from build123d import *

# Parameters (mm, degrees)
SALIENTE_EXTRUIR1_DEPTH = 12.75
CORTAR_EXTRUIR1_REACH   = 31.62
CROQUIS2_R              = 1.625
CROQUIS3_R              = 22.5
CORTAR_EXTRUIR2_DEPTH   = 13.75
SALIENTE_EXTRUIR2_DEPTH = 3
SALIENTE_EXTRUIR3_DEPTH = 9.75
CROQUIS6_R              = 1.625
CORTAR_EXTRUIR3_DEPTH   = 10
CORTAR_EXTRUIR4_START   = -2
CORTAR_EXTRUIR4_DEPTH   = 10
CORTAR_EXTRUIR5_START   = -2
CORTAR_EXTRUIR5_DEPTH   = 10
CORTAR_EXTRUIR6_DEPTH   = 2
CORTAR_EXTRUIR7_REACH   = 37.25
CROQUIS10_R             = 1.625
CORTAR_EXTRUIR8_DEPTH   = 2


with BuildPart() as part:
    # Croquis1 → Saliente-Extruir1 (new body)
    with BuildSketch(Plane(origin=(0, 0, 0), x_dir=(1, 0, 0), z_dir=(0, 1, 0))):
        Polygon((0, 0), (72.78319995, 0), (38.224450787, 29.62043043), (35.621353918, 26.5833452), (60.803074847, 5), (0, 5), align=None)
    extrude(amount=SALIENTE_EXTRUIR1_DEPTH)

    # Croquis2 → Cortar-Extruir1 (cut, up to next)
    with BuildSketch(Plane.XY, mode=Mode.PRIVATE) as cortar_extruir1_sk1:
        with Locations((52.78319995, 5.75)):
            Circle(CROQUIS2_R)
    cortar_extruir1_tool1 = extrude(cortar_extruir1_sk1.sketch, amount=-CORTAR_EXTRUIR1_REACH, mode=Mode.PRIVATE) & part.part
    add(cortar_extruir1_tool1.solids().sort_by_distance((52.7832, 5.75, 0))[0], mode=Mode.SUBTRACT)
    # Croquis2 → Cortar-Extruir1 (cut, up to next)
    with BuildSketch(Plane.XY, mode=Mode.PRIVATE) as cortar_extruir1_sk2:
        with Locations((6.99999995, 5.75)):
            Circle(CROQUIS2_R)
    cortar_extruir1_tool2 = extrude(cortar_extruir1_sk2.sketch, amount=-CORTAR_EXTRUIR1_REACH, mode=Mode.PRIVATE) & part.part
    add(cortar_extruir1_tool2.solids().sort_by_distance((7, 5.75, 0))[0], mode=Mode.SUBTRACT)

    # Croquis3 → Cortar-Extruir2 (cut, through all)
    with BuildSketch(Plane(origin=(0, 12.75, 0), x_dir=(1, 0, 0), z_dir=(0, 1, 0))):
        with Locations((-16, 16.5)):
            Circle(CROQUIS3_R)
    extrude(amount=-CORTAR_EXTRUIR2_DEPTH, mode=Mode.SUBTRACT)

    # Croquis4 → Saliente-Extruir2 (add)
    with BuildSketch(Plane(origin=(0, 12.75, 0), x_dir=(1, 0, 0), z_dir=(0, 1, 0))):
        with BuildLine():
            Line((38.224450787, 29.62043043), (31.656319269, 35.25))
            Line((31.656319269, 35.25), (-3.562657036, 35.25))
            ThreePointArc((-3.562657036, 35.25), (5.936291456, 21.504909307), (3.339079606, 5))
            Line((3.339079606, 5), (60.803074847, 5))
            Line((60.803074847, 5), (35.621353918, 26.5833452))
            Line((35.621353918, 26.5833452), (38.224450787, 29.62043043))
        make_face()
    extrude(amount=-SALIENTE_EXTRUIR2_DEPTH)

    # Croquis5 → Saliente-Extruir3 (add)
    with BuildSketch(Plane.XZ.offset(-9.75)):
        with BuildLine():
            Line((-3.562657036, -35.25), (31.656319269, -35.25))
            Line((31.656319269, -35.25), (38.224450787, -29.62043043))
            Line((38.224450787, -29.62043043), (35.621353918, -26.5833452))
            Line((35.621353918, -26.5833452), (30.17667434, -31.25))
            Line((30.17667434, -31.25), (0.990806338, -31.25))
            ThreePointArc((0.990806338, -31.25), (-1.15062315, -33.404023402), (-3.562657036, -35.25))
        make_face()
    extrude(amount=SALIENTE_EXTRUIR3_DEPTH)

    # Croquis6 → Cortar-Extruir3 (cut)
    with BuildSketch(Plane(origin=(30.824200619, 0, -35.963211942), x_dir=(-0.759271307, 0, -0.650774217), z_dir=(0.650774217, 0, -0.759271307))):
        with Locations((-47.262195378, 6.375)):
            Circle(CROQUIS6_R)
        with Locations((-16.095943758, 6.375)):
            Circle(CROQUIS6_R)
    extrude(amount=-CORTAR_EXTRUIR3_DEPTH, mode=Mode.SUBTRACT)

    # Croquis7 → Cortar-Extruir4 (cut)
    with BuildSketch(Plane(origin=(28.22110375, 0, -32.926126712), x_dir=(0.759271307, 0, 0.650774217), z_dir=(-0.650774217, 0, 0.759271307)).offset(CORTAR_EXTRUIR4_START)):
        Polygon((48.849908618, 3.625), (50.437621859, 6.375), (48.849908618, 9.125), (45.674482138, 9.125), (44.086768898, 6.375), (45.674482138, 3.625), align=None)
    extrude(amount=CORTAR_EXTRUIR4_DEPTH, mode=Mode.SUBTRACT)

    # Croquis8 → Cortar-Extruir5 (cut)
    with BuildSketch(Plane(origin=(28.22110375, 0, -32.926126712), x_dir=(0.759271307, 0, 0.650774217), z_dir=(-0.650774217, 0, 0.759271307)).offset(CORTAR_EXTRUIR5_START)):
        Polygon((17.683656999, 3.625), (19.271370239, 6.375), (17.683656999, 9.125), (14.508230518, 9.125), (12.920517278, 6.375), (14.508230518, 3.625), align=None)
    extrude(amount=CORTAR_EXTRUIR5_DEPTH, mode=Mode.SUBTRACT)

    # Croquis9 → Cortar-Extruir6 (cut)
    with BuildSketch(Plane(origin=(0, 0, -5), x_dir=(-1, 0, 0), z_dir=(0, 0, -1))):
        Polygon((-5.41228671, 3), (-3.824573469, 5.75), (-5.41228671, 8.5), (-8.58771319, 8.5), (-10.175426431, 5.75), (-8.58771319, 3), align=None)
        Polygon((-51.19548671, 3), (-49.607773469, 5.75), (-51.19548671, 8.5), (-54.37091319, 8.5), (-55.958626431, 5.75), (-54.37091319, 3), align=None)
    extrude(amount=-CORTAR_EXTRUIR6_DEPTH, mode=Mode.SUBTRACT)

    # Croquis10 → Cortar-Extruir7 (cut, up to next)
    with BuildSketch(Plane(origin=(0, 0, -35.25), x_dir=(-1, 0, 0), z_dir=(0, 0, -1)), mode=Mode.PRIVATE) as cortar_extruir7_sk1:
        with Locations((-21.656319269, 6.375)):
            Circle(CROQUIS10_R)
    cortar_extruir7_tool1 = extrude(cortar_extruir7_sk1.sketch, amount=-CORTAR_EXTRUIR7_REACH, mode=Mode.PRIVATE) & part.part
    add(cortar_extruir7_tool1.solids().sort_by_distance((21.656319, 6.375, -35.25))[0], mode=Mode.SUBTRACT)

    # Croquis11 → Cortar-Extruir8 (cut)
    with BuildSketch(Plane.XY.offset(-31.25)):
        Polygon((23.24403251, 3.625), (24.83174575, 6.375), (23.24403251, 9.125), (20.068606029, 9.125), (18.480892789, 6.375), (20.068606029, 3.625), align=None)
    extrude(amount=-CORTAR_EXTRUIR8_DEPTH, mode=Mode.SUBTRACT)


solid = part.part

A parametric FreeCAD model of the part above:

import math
import FreeCAD as App
import Part
import Sketcher
from FreeCAD import Vector
Q = App.Units.Quantity


def add_polygon(sketch, points):
    """Adds a closed chain of lines whose ends are joined by coincident constraints."""
    first, n = sketch.GeometryCount, len(points)
    for a, b in zip(points, points[1:] + points[:1]):
        sketch.addGeometry(Part.LineSegment(App.Vector(*a, 0), App.Vector(*b, 0)), False)
    for i in range(n):
        sketch.addConstraint(Sketcher.Constraint("Coincident", first + i, 2, first + (i + 1) % n, 1))

doc = App.newDocument("Part")
body = doc.addObject("PartDesign::Body", "Body")

sketch1 = body.newObject("Sketcher::SketchObject", "Sketch")
sketch1.AttachmentSupport = (doc.getObject("XZ_Plane"), [""])
sketch1.MapMode = "FlatFace"
add_polygon(sketch1, [(0, 0), (72.8, 0), (38.2, -29.6), (35.6, -26.6), (60.8, -5), (0, -5)])
sketch1.addConstraint([
    Sketcher.Constraint("Horizontal", 0),
    Sketcher.Constraint("Horizontal", 4),
    Sketcher.Constraint("Vertical", 5),
    Sketcher.Constraint("Coincident", 5, 2, -1, 1),
    Sketcher.Constraint("Perpendicular", 1, 2),
    Sketcher.Constraint("Perpendicular", 2, 3),
    Sketcher.Constraint("DistanceY", 5, 1, 5, 2, Q("5 mm")),
    Sketcher.Constraint("Distance", 2, Q("4 mm")),
    Sketcher.Constraint("Angle", 1, Q("-139.4 deg")),
    Sketcher.Constraint("DistanceX", 0, 1, 0, 2, Q("72.7832 mm")),
    Sketcher.Constraint("Distance", 1, Q("45.515679 mm")),
])
pad1 = body.newObject("PartDesign::Pad", "Pad")
pad1.Profile = sketch1
pad1.Length = 12.75
pad1.Reversed = True

sketch2 = body.newObject("Sketcher::SketchObject", "Sketch001")
sketch2.AttachmentSupport = (doc.getObject("XY_Plane"), [""])
sketch2.MapMode = "FlatFace"
sketch2.addGeometry(Part.Circle(Vector(52.8, 5.8, 0), Vector(0, 0, 1), 1.6), False)
sketch2.addConstraint([
    Sketcher.Constraint("Diameter", 0, Q("3.25 mm")),
    Sketcher.Constraint("DistanceY", -1, 1, 0, 3, Q("5.75 mm")),
    Sketcher.Constraint("DistanceX", -1, 1, 0, 3, Q("52.7832 mm")),
])
pocket1 = body.newObject("PartDesign::Pocket", "Pocket")
pocket1.Profile = sketch2
pocket1.Type = "UpToFirst"

sketch3 = body.newObject("Sketcher::SketchObject", "Sketch002")
sketch3.AttachmentSupport = (doc.getObject("XY_Plane"), [""])
sketch3.MapMode = "FlatFace"
sketch3.addGeometry(Part.Circle(Vector(7, 5.8, 0), Vector(0, 0, 1), 1.6), False)
sketch3.addConstraint([
    Sketcher.Constraint("Diameter", 0, Q("3.25 mm")),
    Sketcher.Constraint("DistanceX", -1, 1, 0, 3, Q("7 mm")),
    Sketcher.Constraint("DistanceY", -1, 1, 0, 3, Q("5.75 mm")),
])
pocket2 = body.newObject("PartDesign::Pocket", "Pocket001")
pocket2.Profile = sketch3
pocket2.Type = "UpToFirst"

sketch4 = body.newObject("Sketcher::SketchObject", "Sketch003")
sketch4.AttachmentSupport = (doc.getObject("XZ_Plane"), [""])
sketch4.MapMode = "FlatFace"
sketch4.AttachmentOffset = App.Placement(Vector(0, 0, -12.75), App.Rotation())
sketch4.addGeometry(Part.Circle(Vector(-16, -16, 0), Vector(0, 0, 1), 22), False)
sketch4.addConstraint([
    Sketcher.Constraint("Diameter", 0, Q("45 mm")),
    Sketcher.Constraint("DistanceX", 0, 3, -1, 1, Q("16 mm")),
    Sketcher.Constraint("DistanceY", 0, 3, -1, 1, Q("16.5 mm")),
])
pocket3 = body.newObject("PartDesign::Pocket", "Pocket002")
pocket3.Profile = sketch4
pocket3.Type = "ThroughAll"
pocket3.Reversed = True

sketch5 = body.newObject("Sketcher::SketchObject", "Sketch004")
sketch5.AttachmentSupport = (doc.getObject("XZ_Plane"), [""])
sketch5.MapMode = "FlatFace"
sketch5.AttachmentOffset = App.Placement(Vector(0, 0, -12.75), App.Rotation())
sketch5.addGeometry([
    Part.LineSegment(Vector(38.2, -29.6, 0), Vector(31.7, -35.2, 0)),
    Part.LineSegment(Vector(31.7, -35.2, 0), Vector(-3.6, -35.2, 0)),
    Part.ArcOfCircle(Part.Circle(Vector(-16, -16.5, 0), Vector(0, 0, 1), 22.5), math.radians(-56), math.radians(31)),
    Part.LineSegment(Vector(3.3, -5, 0), Vector(60.8, -5, 0)),
    Part.LineSegment(Vector(60.8, -5, 0), Vector(35.6, -26.6, 0)),
    Part.LineSegment(Vector(35.6, -26.6, 0), Vector(38.2, -29.6, 0)),
], False)
sketch5.addConstraint([
    Sketcher.Constraint("Coincident", 0, 2, 1, 1),
    Sketcher.Constraint("Coincident", 1, 2, 2, 1),
    Sketcher.Constraint("Coincident", 2, 2, 3, 1),
    Sketcher.Constraint("Coincident", 3, 2, 4, 1),
    Sketcher.Constraint("Coincident", 4, 2, 5, 1),
    Sketcher.Constraint("Coincident", 5, 2, 0, 1),
    Sketcher.Constraint("Horizontal", 1),
    Sketcher.Constraint("Horizontal", 3),
    Sketcher.Constraint("Parallel", 0, 4),
    Sketcher.Constraint("Perpendicular", 4, 5),
    Sketcher.Constraint("Radius", 2, Q("22.5 mm")),
    Sketcher.Constraint("Distance", 5, Q("4 mm")),
    Sketcher.Constraint("DistanceX", 2, 3, -1, 1, Q("16 mm")),
    Sketcher.Constraint("DistanceY", 2, 2, -1, 1, Q("5 mm")),
    Sketcher.Constraint("Angle", 0, Q("-139.4 deg")),
    Sketcher.Constraint("DistanceY", 2, 3, -1, 1, Q("16.5 mm")),
    Sketcher.Constraint("DistanceY", 0, 2, -1, 1, Q("35.25 mm")),
    Sketcher.Constraint("DistanceX", 1, 2, 1, 1, Q("35.218976 mm")),
    Sketcher.Constraint("DistanceX", -1, 1, 5, 2, Q("38.224451 mm")),
])
pad2 = body.newObject("PartDesign::Pad", "Pad001")
pad2.Profile = sketch5
pad2.Length = 3

sketch6 = body.newObject("Sketcher::SketchObject", "Sketch005")
sketch6.AttachmentSupport = (doc.getObject("XZ_Plane"), [""])
sketch6.MapMode = "FlatFace"
sketch6.AttachmentOffset = App.Placement(Vector(0, 0, -9.75), App.Rotation())
sketch6.addGeometry([
    Part.LineSegment(Vector(-3.6, -35.2, 0), Vector(31.7, -35.2, 0)),
    Part.LineSegment(Vector(31.7, -35.2, 0), Vector(38.2, -29.6, 0)),
    Part.LineSegment(Vector(38.2, -29.6, 0), Vector(35.6, -26.6, 0)),
    Part.LineSegment(Vector(35.6, -26.6, 0), Vector(30.2, -31.2, 0)),
    Part.LineSegment(Vector(30.2, -31.2, 0), Vector(1, -31.2, 0)),
    Part.ArcOfCircle(Part.Circle(Vector(-16, -16.5, 0), Vector(0, 0, 1), 22.5), math.radians(-56.44), math.radians(-40.96)),
], False)
sketch6.addConstraint([
    Sketcher.Constraint("Coincident", 0, 2, 1, 1),
    Sketcher.Constraint("Coincident", 1, 2, 2, 1),
    Sketcher.Constraint("Coincident", 2, 2, 3, 1),
    Sketcher.Constraint("Coincident", 3, 2, 4, 1),
    Sketcher.Constraint("Coincident", 4, 2, 5, 2),
    Sketcher.Constraint("Coincident", 5, 1, 0, 1),
    Sketcher.Constraint("Horizontal", 0),
    Sketcher.Constraint("Horizontal", 4),
    Sketcher.Constraint("Perpendicular", 1, 2),
    Sketcher.Constraint("Perpendicular", 2, 3),
    Sketcher.Constraint("Radius", 5, Q("22.5 mm")),
    Sketcher.Constraint("Distance", 2, Q("4 mm")),
    Sketcher.Constraint("DistanceX", 5, 3, -1, 1, Q("16 mm")),
    Sketcher.Constraint("Angle", 1, Q("40.6 deg")),
    Sketcher.Constraint("DistanceY", 0, 2, 3, 2, Q("4 mm")),
    Sketcher.Constraint("DistanceY", 5, 3, -1, 1, Q("16.5 mm")),
    Sketcher.Constraint("DistanceY", 0, 2, -1, 1, Q("35.25 mm")),
    Sketcher.Constraint("DistanceX", 4, 2, 4, 1, Q("29.185868 mm")),
    Sketcher.Constraint("DistanceX", -1, 1, 1, 2, Q("38.224451 mm")),
])
pad3 = body.newObject("PartDesign::Pad", "Pad002")
pad3.Profile = sketch6
pad3.Length = 9.75

sketch7 = body.newObject("Sketcher::SketchObject", "Sketch006")
sketch7.Placement = App.Placement(Vector(30.824201, 0, -35.963212), App.Rotation(Vector(-0.759271307, 0, -0.650774217), Vector(0, 0.999999999, 0), Vector(0.650774217, 0, -0.759271307), "ZXY"))
sketch7.addGeometry([
    Part.Circle(Vector(-47.3, 6.4, 0), Vector(0, 0, 1), 1.6),
    Part.Circle(Vector(-16.1, 6.4, 0), Vector(0, 0, 1), 1.6),
], False)
sketch7.addConstraint([
    Sketcher.Constraint("Equal", 0, 1),
    Sketcher.Constraint("Horizontal", 0, 3, 1, 3),
    Sketcher.Constraint("Diameter", 0, Q("3.25 mm")),
    Sketcher.Constraint("DistanceY", -1, 1, 0, 3, Q("6.375 mm")),
    Sketcher.Constraint("DistanceX", 0, 3, 1, 3, Q("31.166252 mm")),
    Sketcher.Constraint("DistanceX", 0, 3, -1, 1, Q("47.262195 mm")),
])
pocket4 = body.newObject("PartDesign::Pocket", "Pocket003")
pocket4.Profile = sketch7
pocket4.Length = 10

sketch8 = body.newObject("Sketcher::SketchObject", "Sketch007")
sketch8.Placement = App.Placement(Vector(29.522652, 0, -34.444669), App.Rotation(Vector(0.759271307, 0, 0.650774217), Vector(0, 0.999999999, 0), Vector(-0.650774217, 0, 0.759271307), "ZXY"))
add_polygon(sketch8, [(48.8, 3.6), (50.4, 6.4), (48.8, 9.1), (45.7, 9.1), (44.1, 6.4), (45.7, 3.6)])
sketch8.addConstraint([
    Sketcher.Constraint("Horizontal", 2),
    Sketcher.Constraint("Horizontal", 5),
    Sketcher.Constraint("Parallel", 0, 3),
    Sketcher.Constraint("Parallel", 1, 4),
    Sketcher.Constraint("Horizontal", 0, 2, 3, 2),
    Sketcher.Constraint("Vertical", 2, 2, 4, 2),
    Sketcher.Constraint("Vertical", 1, 2, 5, 2),
    Sketcher.Constraint("Angle", 0, Q("60 deg")),
    Sketcher.Constraint("DistanceY", 4, 2, 2, 2, Q("5.5 mm")),
    Sketcher.Constraint("DistanceY", -1, 1, 0, 2, Q("6.375 mm")),
    Sketcher.Constraint("DistanceX", 2, 2, 2, 1, Q("3.175426 mm")),
    Sketcher.Constraint("DistanceX", -1, 1, 0, 2, Q("50.437622 mm")),
])
pocket5 = body.newObject("PartDesign::Pocket", "Pocket004")
pocket5.Profile = sketch8
pocket5.Length = 10
pocket5.Reversed = True

sketch9 = body.newObject("Sketcher::SketchObject", "Sketch008")
sketch9.Placement = App.Placement(Vector(29.522652, 0, -34.444669), App.Rotation(Vector(0.759271307, 0, 0.650774217), Vector(0, 0.999999999, 0), Vector(-0.650774217, 0, 0.759271307), "ZXY"))
add_polygon(sketch9, [(17.7, 3.6), (19.3, 6.4), (17.7, 9.1), (14.5, 9.1), (12.9, 6.4), (14.5, 3.6)])
sketch9.addConstraint([
    Sketcher.Constraint("Horizontal", 2),
    Sketcher.Constraint("Horizontal", 5),
    Sketcher.Constraint("Parallel", 0, 3),
    Sketcher.Constraint("Parallel", 1, 4),
    Sketcher.Constraint("Horizontal", 0, 2, 3, 2),
    Sketcher.Constraint("Vertical", 2, 2, 4, 2),
    Sketcher.Constraint("Vertical", 1, 2, 5, 2),
    Sketcher.Constraint("Angle", 0, Q("60 deg")),
    Sketcher.Constraint("DistanceY", 4, 2, 2, 2, Q("5.5 mm")),
    Sketcher.Constraint("DistanceY", -1, 1, 0, 2, Q("6.375 mm")),
    Sketcher.Constraint("DistanceX", 2, 2, 2, 1, Q("3.175426 mm")),
    Sketcher.Constraint("DistanceX", -1, 1, 0, 2, Q("19.27137 mm")),
])
pocket6 = body.newObject("PartDesign::Pocket", "Pocket005")
pocket6.Profile = sketch9
pocket6.Length = 10
pocket6.Reversed = True

sketch10 = body.newObject("Sketcher::SketchObject", "Sketch009")
sketch10.AttachmentSupport = (doc.getObject("XY_Plane"), [""])
sketch10.MapMode = "FlatFace"
sketch10.AttachmentOffset = App.Placement(Vector(0, 0, -5), App.Rotation())
add_polygon(sketch10, [(5.4, 3), (3.8, 5.8), (5.4, 8.5), (8.6, 8.5), (10.2, 5.8), (8.6, 3)])
add_polygon(sketch10, [(51.2, 3), (49.6, 5.8), (51.2, 8.5), (54.4, 8.5), (56, 5.8), (54.4, 3)])
sketch10.addConstraint([
    Sketcher.Constraint("Horizontal", 2),
    Sketcher.Constraint("Horizontal", 5),
    Sketcher.Constraint("Horizontal", 8),
    Sketcher.Constraint("Horizontal", 11),
    Sketcher.Constraint("Parallel", 0, 3),
    Sketcher.Constraint("Parallel", 1, 4),
    Sketcher.Constraint("Parallel", 3, 6),
    Sketcher.Constraint("Parallel", 4, 7),
    Sketcher.Constraint("Parallel", 6, 9),
    Sketcher.Constraint("Parallel", 7, 10),
    Sketcher.Constraint("Horizontal", 0, 2, 3, 2),
    Sketcher.Constraint("Horizontal", 3, 2, 6, 2),
    Sketcher.Constraint("Horizontal", 2, 2, 7, 2),
    Sketcher.Constraint("Horizontal", 6, 2, 9, 2),
    Sketcher.Constraint("Horizontal", 5, 2, 10, 2),
    Sketcher.Constraint("Vertical", 2, 2, 4, 2),
    Sketcher.Constraint("Vertical", 1, 2, 5, 2),
    Sketcher.Constraint("Equal", 5, 8),
    Sketcher.Constraint("Angle", 0, Q("120 deg")),
    Sketcher.Constraint("DistanceY", -1, 1, 4, 2, Q("3 mm")),
    Sketcher.Constraint("DistanceY", -1, 1, 1, 2, Q("8.5 mm")),
    Sketcher.Constraint("DistanceX", 1, 2, 7, 2, Q("45.7832 mm")),
    Sketcher.Constraint("DistanceX", 2, 1, 2, 2, Q("3.175426 mm")),
    Sketcher.Constraint("DistanceX", -1, 1, 0, 2, Q("3.824573 mm")),
])
pocket7 = body.newObject("PartDesign::Pocket", "Pocket006")
pocket7.Profile = sketch10
pocket7.Length = 2
pocket7.Reversed = True

sketch11 = body.newObject("Sketcher::SketchObject", "Sketch010")
sketch11.AttachmentSupport = (doc.getObject("XY_Plane"), [""])
sketch11.MapMode = "FlatFace"
sketch11.AttachmentOffset = App.Placement(Vector(0, 0, -35.25), App.Rotation())
sketch11.addGeometry(Part.Circle(Vector(21.7, 6.4, 0), Vector(0, 0, 1), 1.6), False)
sketch11.addConstraint([
    Sketcher.Constraint("Diameter", 0, Q("3.25 mm")),
    Sketcher.Constraint("DistanceY", -1, 1, 0, 3, Q("6.375 mm")),
    Sketcher.Constraint("DistanceX", -1, 1, 0, 3, Q("21.656319 mm")),
])
pocket8 = body.newObject("PartDesign::Pocket", "Pocket007")
pocket8.Profile = sketch11
pocket8.Type = "UpToFirst"
pocket8.Reversed = True

sketch12 = body.newObject("Sketcher::SketchObject", "Sketch011")
sketch12.AttachmentSupport = (doc.getObject("XY_Plane"), [""])
sketch12.MapMode = "FlatFace"
sketch12.AttachmentOffset = App.Placement(Vector(0, 0, -31.25), App.Rotation())
add_polygon(sketch12, [(23.2, 3.6), (24.8, 6.4), (23.2, 9.1), (20.1, 9.1), (18.5, 6.4), (20.1, 3.6)])
sketch12.addConstraint([
    Sketcher.Constraint("Horizontal", 2),
    Sketcher.Constraint("Horizontal", 5),
    Sketcher.Constraint("Parallel", 0, 3),
    Sketcher.Constraint("Parallel", 1, 4),
    Sketcher.Constraint("Horizontal", 0, 2, 3, 2),
    Sketcher.Constraint("Vertical", 2, 2, 4, 2),
    Sketcher.Constraint("Vertical", 1, 2, 5, 2),
    Sketcher.Constraint("Angle", 0, Q("60 deg")),
    Sketcher.Constraint("DistanceY", 4, 2, 2, 2, Q("5.5 mm")),
    Sketcher.Constraint("DistanceY", -1, 1, 0, 2, Q("6.375 mm")),
    Sketcher.Constraint("DistanceX", 2, 2, 2, 1, Q("3.175426 mm")),
    Sketcher.Constraint("DistanceX", -1, 1, 0, 2, Q("24.831746 mm")),
])
pocket9 = body.newObject("PartDesign::Pocket", "Pocket008")
pocket9.Profile = sketch12
pocket9.Length = 2

doc.recompute()
